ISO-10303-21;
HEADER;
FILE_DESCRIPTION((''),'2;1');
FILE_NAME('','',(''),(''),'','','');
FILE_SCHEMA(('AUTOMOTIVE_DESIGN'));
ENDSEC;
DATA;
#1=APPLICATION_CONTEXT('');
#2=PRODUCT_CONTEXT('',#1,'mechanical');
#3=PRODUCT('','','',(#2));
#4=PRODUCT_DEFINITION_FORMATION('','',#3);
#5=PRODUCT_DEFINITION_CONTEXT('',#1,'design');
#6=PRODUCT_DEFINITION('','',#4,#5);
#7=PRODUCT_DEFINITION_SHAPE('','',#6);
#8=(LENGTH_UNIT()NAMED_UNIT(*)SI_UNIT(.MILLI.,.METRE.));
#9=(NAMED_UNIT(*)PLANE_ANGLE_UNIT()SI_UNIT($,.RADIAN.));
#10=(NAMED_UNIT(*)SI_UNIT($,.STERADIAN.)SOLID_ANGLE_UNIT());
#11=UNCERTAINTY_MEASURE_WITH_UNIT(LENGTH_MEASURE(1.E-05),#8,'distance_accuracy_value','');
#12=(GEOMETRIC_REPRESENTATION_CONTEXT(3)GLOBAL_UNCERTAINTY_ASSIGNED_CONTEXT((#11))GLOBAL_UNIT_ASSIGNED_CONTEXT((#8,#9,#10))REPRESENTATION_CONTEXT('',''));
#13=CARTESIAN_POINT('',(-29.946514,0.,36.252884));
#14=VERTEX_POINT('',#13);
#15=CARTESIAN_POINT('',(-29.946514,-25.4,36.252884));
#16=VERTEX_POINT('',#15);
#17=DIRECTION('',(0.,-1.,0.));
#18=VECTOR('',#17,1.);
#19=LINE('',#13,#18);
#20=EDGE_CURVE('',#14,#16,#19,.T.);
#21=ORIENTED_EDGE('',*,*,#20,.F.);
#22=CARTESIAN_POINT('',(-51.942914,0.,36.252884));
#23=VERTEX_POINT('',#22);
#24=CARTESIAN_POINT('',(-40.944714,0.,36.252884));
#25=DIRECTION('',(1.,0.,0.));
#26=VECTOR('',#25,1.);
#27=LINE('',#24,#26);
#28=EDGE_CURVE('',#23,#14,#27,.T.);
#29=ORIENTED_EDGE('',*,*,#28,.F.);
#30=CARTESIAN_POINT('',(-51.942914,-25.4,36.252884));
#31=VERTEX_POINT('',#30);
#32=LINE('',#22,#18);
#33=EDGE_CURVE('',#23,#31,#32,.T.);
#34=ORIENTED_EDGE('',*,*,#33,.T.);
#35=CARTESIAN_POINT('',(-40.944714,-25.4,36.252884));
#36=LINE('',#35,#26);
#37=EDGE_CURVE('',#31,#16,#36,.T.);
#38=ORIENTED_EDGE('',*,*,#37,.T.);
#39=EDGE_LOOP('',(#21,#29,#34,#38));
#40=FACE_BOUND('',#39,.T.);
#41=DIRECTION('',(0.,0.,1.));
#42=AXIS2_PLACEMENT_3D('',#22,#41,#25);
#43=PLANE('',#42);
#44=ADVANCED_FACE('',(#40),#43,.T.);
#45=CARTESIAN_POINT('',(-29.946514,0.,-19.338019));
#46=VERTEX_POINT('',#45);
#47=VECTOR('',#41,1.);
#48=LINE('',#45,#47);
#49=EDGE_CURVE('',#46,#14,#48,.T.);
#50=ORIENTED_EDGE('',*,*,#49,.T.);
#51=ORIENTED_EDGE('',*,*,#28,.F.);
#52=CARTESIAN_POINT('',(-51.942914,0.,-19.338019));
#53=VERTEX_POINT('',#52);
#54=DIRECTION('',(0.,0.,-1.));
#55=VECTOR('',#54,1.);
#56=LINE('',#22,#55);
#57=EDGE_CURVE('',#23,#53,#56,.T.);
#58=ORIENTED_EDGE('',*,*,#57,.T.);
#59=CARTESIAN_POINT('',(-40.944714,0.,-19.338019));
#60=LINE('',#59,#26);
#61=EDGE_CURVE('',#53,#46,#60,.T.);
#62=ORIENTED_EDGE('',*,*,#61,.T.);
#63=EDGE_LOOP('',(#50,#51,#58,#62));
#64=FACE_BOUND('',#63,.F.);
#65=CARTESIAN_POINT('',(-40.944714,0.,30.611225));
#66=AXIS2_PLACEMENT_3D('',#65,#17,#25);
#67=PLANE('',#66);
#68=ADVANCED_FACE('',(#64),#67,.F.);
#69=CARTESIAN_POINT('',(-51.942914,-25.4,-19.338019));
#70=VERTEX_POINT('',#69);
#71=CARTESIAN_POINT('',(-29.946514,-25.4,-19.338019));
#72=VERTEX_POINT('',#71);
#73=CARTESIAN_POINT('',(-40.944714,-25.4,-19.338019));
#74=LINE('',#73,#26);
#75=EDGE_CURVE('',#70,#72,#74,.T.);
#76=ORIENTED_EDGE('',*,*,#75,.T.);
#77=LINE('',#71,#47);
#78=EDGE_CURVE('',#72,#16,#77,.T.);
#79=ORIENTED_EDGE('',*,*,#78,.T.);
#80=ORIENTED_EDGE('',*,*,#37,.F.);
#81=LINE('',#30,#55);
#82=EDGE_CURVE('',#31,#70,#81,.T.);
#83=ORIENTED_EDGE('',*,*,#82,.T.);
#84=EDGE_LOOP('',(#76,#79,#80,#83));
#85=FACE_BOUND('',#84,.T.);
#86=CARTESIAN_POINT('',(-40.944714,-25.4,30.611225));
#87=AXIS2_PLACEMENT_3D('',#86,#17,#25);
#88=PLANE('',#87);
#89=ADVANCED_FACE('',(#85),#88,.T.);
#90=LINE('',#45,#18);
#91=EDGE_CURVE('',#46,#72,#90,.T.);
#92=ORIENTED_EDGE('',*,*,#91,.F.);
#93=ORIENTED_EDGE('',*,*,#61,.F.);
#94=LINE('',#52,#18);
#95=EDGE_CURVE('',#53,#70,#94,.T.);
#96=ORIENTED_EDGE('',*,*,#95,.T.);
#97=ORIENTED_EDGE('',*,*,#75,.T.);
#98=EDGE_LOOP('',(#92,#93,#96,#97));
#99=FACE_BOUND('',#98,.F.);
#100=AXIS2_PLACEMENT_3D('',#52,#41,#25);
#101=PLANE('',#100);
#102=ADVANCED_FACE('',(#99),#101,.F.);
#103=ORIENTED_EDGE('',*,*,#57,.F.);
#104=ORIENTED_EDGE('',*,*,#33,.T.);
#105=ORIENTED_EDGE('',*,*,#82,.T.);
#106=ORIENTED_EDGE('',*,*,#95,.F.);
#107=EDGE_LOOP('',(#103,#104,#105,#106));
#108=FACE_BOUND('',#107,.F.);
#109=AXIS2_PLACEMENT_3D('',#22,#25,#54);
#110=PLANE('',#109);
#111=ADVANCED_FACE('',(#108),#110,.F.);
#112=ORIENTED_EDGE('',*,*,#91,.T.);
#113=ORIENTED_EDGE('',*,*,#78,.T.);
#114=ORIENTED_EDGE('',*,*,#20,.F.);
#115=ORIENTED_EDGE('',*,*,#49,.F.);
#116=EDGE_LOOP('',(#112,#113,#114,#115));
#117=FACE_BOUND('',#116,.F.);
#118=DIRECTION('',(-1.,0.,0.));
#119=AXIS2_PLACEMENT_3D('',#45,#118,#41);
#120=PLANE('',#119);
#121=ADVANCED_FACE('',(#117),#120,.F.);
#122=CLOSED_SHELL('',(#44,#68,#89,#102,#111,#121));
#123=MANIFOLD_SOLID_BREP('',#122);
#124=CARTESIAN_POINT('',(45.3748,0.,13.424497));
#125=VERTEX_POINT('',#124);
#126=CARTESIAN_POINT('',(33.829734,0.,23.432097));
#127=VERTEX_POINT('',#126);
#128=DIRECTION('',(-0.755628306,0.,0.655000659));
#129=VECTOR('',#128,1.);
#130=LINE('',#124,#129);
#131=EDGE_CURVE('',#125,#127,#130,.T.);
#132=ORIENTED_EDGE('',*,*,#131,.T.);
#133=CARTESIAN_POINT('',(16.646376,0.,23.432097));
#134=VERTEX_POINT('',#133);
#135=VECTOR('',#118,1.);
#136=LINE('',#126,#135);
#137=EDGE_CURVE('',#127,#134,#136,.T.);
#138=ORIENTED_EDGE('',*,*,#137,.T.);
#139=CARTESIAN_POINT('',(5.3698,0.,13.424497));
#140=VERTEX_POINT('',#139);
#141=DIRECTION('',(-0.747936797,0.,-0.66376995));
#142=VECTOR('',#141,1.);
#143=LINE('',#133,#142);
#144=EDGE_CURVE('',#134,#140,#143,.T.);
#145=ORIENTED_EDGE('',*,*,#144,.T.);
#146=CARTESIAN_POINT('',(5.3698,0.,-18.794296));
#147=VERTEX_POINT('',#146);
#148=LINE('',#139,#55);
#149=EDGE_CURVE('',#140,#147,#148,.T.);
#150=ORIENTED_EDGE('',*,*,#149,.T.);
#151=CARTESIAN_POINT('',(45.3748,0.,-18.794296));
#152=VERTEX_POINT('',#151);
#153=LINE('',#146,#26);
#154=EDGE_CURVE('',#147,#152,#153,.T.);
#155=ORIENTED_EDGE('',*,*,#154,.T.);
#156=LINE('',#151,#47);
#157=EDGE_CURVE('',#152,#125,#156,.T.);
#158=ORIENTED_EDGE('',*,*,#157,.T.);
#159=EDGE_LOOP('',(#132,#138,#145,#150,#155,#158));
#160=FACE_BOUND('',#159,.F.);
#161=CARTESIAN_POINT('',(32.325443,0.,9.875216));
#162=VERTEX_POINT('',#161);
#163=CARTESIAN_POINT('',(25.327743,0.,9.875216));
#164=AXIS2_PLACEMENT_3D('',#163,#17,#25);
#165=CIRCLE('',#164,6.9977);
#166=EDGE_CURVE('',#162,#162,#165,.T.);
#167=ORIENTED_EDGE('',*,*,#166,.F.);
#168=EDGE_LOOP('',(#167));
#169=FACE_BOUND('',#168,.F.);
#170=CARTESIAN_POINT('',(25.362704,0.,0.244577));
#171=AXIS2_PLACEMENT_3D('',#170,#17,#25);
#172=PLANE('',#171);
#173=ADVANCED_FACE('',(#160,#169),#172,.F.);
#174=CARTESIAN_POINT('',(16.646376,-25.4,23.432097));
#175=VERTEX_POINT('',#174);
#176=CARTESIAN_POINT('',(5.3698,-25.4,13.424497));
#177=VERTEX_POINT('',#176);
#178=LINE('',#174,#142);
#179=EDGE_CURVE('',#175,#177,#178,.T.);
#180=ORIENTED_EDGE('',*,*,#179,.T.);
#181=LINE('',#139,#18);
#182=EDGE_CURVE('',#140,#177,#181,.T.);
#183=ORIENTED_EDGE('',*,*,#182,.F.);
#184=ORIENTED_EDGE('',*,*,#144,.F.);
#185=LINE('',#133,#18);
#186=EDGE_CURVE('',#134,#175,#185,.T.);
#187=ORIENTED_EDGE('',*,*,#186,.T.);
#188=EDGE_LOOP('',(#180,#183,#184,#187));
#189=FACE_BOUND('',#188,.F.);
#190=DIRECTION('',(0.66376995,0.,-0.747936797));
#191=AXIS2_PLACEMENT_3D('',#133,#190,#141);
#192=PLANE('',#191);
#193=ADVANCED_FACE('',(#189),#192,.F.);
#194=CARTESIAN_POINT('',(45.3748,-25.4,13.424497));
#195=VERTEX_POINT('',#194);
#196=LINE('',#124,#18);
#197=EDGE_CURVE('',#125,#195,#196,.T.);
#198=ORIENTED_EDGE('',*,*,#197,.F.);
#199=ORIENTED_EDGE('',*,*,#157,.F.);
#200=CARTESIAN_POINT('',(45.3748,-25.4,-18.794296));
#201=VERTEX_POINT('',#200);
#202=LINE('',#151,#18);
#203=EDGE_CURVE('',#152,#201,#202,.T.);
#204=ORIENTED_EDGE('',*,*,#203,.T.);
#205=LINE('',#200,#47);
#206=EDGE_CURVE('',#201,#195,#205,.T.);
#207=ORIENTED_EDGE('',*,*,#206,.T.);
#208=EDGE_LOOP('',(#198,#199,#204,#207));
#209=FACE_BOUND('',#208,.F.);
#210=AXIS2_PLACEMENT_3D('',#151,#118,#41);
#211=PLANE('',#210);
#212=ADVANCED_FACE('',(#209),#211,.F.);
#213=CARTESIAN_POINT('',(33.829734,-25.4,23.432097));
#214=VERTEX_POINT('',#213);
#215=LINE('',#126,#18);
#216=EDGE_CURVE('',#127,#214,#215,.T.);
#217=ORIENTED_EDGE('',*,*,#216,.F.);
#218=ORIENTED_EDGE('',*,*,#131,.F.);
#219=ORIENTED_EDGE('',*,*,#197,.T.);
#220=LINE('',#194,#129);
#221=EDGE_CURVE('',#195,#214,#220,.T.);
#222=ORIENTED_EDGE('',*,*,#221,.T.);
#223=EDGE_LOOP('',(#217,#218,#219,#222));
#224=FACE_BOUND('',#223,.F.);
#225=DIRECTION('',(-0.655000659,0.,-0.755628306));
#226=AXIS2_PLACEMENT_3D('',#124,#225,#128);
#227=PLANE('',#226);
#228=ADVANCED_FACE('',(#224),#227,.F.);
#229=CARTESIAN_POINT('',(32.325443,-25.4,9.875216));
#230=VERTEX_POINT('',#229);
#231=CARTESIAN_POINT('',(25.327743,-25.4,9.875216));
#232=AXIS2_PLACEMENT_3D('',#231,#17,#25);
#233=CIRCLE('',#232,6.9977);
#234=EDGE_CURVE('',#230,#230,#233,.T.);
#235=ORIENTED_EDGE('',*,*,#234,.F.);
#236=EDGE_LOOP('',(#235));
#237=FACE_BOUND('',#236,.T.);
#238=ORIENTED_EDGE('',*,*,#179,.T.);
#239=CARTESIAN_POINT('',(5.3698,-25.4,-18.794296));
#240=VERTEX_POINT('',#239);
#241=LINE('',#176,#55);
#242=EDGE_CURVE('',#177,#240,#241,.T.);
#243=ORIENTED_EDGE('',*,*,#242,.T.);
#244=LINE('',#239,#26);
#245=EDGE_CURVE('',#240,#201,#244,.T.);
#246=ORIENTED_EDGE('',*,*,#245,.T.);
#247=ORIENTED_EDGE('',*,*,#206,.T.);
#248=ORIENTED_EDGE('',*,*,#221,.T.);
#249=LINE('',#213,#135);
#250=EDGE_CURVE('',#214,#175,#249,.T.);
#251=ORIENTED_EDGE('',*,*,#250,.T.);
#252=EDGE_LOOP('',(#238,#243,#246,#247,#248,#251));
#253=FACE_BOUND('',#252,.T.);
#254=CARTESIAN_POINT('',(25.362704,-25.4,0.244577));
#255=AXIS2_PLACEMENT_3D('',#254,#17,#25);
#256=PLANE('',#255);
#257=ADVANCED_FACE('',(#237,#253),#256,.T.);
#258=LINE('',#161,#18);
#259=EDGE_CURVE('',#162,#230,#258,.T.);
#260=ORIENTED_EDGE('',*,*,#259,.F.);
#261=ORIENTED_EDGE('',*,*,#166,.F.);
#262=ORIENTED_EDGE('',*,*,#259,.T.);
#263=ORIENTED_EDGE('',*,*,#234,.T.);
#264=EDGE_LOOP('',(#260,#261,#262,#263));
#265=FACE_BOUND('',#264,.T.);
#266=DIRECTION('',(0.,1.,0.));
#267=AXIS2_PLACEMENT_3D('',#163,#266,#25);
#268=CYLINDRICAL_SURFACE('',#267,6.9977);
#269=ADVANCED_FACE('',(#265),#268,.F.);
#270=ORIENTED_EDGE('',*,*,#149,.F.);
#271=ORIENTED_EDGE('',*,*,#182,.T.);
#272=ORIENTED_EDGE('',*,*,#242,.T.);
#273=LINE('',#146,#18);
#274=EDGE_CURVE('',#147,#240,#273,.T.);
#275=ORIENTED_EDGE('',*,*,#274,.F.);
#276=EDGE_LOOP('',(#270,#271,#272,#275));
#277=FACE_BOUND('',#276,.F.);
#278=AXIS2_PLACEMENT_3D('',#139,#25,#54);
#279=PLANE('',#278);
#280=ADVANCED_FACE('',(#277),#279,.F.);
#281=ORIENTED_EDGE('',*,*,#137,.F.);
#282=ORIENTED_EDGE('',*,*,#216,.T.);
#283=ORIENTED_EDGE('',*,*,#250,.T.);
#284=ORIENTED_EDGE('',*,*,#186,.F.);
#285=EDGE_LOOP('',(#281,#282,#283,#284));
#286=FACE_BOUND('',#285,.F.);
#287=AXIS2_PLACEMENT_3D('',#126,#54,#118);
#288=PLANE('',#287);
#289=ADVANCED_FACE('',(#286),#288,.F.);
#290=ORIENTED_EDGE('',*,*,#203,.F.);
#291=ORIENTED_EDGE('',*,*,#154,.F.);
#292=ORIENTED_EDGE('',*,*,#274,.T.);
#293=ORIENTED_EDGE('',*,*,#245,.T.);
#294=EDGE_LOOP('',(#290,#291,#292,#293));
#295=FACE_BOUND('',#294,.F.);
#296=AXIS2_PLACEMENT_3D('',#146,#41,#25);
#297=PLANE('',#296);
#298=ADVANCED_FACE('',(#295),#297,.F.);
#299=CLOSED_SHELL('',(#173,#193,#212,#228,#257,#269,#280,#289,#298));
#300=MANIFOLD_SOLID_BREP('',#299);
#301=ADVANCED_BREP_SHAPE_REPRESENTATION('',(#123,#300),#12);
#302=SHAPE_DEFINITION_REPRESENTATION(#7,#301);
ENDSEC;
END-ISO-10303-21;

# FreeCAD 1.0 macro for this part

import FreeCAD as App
import Part
import Sketcher
from FreeCAD import Vector
Q = App.Units.Quantity

doc = App.newDocument("Part")
body = doc.addObject("PartDesign::Body", "Body")
body.AllowCompound = True

sketch1 = body.newObject("Sketcher::SketchObject", "Sketch")
sketch1.AttachmentSupport = (doc.getObject("XZ_Plane"), [""])
sketch1.MapMode = "FlatFace"
sketch1.addGeometry([
    Part.LineSegment(Vector(-51.942914, 36.252884, 0), Vector(-51.942914, -19.338019, 0)),
    Part.LineSegment(Vector(-51.942914, -19.338019, 0), Vector(-29.946514, -19.338019, 0)),
    Part.LineSegment(Vector(-29.946514, -19.338019, 0), Vector(-29.946514, 36.252884, 0)),
    Part.LineSegment(Vector(-29.946514, 36.252884, 0), Vector(-51.942914, 36.252884, 0)),
    Part.LineSegment(Vector(5.3698, 13.424497, 0), Vector(5.3698, -18.794296, 0)),
    Part.LineSegment(Vector(5.3698, -18.794296, 0), Vector(45.3748, -18.794296, 0)),
    Part.LineSegment(Vector(45.3748, -18.794296, 0), Vector(45.3748, 13.424497, 0)),
    Part.LineSegment(Vector(45.3748, 13.424497, 0), Vector(33.829734, 23.432097, 0)),
    Part.LineSegment(Vector(33.829734, 23.432097, 0), Vector(16.646376, 23.432097, 0)),
    Part.LineSegment(Vector(16.646376, 23.432097, 0), Vector(5.3698, 13.424497, 0)),
    Part.Circle(Vector(25.327743, 9.875216, 0), Vector(0, 0, 1), 6.9977),
], False)
sketch1.addConstraint([
    Sketcher.Constraint("Coincident", 0, 2, 1, 1),
    Sketcher.Constraint("Coincident", 1, 2, 2, 1),
    Sketcher.Constraint("Coincident", 2, 2, 3, 1),
    Sketcher.Constraint("Coincident", 3, 2, 0, 1),
    Sketcher.Constraint("Coincident", 4, 2, 5, 1),
    Sketcher.Constraint("Coincident", 5, 2, 6, 1),
    Sketcher.Constraint("Coincident", 6, 2, 7, 1),
    Sketcher.Constraint("Coincident", 7, 2, 8, 1),
    Sketcher.Constraint("Coincident", 8, 2, 9, 1),
    Sketcher.Constraint("Coincident", 9, 2, 4, 1),
    Sketcher.Constraint("Vertical", 0),
    Sketcher.Constraint("Horizontal", 1),
    Sketcher.Constraint("Vertical", 2),
    Sketcher.Constraint("Horizontal", 3),
    Sketcher.Constraint("Vertical", 4),
    Sketcher.Constraint("Horizontal", 5),
    Sketcher.Constraint("Vertical", 6),
    Sketcher.Constraint("Horizontal", 8),
    Sketcher.Constraint("Horizontal", 6, 2, 9, 2),
    Sketcher.Constraint("Diameter", 10, Q("0.551 in")),
    Sketcher.Constraint("DistanceX", 1, 1, 1, 2, Q("0.866 in")),
    Sketcher.Constraint("DistanceX", 5, 1, 5, 2, Q("1.575 in")),
    Sketcher.Constraint("DistanceY", 6, 2, 7, 2, Q("0.394 in")),
    Sketcher.Constraint("DistanceX", 8, 2, 8, 1, 17.183358),
    Sketcher.Constraint("DistanceX", -1, 1, 4, 2, 5.3698),
    Sketcher.Constraint("Distance", 9, 15.07691),
    Sketcher.Constraint("DistanceY", 0, 2, 0, 1, 55.590902),
    Sketcher.Constraint("DistanceY", 4, 2, 4, 1, 32.218793),
    Sketcher.Constraint("DistanceY", 0, 2, -1, 1, 19.338019),
    Sketcher.Constraint("DistanceY", 4, 2, 10, 3, 28.669512),
    Sketcher.Constraint("DistanceY", 4, 2, 2, 2, 55.047179),
    Sketcher.Constraint("DistanceX", 10, 3, 7, 2, 8.501991),
    Sketcher.Constraint("DistanceX", 2, 2, 7, 2, 63.776248),
])
pad1 = body.newObject("PartDesign::Pad", "Pad")
pad1.Profile = sketch1
pad1.Length = Q("1 in")

doc.recompute()
